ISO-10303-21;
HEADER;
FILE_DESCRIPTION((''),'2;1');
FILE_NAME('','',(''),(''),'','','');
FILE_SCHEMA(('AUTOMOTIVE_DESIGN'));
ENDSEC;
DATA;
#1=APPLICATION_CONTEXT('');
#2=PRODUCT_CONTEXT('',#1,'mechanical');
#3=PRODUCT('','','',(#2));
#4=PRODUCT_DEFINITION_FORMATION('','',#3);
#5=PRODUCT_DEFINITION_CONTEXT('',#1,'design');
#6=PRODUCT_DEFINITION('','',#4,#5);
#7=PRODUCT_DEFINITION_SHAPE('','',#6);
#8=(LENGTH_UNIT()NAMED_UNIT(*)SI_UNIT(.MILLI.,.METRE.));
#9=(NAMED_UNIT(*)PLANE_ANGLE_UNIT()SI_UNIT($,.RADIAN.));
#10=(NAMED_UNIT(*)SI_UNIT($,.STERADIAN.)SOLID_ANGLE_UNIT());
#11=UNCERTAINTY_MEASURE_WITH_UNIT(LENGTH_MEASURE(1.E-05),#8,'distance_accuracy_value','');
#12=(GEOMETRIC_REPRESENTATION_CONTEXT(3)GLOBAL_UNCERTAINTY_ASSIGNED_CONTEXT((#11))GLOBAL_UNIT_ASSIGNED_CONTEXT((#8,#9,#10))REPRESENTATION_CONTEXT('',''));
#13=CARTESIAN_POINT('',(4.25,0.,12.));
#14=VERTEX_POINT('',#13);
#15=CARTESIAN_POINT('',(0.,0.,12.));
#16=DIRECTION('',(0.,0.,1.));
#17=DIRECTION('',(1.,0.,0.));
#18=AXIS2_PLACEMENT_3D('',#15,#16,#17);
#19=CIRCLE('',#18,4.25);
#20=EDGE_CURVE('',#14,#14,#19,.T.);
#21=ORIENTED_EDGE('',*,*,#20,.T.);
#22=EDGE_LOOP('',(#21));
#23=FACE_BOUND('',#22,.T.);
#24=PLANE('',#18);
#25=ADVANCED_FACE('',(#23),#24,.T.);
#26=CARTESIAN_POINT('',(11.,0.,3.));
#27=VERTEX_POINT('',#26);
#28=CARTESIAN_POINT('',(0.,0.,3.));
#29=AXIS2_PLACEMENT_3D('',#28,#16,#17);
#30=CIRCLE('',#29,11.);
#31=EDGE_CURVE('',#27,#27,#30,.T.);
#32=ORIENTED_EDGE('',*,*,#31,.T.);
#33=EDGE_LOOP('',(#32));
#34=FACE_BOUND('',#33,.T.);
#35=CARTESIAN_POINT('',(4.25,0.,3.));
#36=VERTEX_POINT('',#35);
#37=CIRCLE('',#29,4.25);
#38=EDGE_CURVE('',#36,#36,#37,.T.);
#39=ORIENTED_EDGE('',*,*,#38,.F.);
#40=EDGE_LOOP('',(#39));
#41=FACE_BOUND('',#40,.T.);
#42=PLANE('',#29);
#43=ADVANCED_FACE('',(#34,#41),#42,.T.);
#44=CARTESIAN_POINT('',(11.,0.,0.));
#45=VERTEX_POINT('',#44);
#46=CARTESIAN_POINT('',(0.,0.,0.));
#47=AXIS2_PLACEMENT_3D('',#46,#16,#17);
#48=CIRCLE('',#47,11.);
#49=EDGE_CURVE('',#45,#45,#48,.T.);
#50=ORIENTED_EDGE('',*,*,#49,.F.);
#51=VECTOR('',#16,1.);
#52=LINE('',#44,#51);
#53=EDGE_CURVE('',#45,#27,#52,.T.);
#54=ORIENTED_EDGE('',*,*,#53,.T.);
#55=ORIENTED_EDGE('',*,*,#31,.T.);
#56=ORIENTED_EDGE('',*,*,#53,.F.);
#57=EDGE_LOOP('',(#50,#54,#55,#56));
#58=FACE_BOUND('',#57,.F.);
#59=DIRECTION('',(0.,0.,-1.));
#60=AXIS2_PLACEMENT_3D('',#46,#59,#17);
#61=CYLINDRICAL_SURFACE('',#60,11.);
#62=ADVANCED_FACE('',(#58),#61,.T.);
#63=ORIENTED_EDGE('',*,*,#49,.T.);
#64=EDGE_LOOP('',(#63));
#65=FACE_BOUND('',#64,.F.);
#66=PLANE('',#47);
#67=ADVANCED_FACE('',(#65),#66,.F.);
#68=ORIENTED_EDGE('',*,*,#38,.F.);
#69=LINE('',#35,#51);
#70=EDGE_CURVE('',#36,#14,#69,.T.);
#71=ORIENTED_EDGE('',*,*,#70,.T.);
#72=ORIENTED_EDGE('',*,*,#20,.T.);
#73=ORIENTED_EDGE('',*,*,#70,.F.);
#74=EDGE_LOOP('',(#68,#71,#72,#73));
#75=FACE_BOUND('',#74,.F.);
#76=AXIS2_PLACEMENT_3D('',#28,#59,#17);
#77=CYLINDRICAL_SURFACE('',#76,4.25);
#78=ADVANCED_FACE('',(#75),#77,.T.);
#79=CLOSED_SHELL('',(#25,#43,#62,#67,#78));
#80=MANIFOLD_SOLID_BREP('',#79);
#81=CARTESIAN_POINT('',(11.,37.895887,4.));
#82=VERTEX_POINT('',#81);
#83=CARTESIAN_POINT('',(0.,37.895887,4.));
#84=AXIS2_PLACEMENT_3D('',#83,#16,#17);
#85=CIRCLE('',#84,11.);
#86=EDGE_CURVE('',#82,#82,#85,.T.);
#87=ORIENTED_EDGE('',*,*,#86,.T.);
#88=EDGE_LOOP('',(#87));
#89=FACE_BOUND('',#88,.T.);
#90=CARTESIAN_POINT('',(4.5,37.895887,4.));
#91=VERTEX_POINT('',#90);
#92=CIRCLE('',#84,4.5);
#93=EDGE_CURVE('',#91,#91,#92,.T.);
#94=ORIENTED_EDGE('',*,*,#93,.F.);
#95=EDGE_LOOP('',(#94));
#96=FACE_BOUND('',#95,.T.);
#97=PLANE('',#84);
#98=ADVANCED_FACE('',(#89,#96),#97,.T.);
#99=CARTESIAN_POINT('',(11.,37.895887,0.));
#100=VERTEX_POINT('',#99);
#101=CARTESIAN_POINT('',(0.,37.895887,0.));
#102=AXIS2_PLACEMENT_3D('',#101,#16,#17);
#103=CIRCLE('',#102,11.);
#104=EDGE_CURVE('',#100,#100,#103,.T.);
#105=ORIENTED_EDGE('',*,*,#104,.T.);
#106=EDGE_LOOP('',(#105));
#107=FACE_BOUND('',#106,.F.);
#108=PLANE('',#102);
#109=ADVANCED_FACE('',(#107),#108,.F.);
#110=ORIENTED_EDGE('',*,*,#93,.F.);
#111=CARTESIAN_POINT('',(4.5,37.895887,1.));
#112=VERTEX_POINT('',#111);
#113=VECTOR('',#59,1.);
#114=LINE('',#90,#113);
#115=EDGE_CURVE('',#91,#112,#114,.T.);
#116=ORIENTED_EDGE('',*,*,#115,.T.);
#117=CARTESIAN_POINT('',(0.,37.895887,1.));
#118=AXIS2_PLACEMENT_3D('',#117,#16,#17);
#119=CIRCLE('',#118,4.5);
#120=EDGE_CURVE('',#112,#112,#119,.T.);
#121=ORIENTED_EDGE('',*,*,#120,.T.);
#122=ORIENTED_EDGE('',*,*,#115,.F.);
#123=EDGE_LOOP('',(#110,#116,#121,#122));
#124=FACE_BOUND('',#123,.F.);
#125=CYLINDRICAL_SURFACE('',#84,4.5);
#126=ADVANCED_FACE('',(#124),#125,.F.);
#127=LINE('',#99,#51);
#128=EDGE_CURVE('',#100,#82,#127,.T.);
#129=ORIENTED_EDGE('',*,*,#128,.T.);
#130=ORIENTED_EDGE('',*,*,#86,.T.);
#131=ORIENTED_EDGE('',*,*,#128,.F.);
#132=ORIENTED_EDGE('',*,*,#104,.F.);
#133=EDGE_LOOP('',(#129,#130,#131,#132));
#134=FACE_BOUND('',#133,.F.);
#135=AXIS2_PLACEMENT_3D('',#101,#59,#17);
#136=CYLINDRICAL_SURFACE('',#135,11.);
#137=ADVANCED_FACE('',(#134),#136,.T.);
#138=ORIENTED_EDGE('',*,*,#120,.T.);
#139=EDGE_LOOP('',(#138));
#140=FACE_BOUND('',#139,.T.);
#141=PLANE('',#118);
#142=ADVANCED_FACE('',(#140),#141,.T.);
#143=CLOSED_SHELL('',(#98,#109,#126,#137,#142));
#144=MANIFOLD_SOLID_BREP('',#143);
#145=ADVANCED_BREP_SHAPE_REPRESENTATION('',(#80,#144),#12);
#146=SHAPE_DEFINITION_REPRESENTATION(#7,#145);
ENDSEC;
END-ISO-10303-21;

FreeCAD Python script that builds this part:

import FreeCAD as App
import Part
import Sketcher

doc = App.newDocument("Part")
params = doc.addObject("Spreadsheet::Sheet", "Params")
for row, (alias, value) in enumerate([
    ("sketch1_diameter", "22 mm"),
    ("pad1_length", "3 mm"),
    ("sketch2_diameter", "8.5 mm"),
    ("pad2_length", "9 mm"),
    ("sketch3_diameter", "22 mm"),
    ("pad3_length", "4 mm"),
    ("sketch4_diameter", "9 mm"),
    ("pocket1_length", "3 mm"),
], start=1):
    params.set(f"A{row}", alias)
    params.set(f"B{row}", "=" + value)
    params.setAlias(f"B{row}", alias)

body = doc.addObject("PartDesign::Body", "Body")

# Sketch on XY plane
sketch1 = doc.addObject("Sketcher::SketchObject", "Sketch")
body.addObject(sketch1)
sketch1.AttachmentSupport = (doc.XY_Plane, [""])
sketch1.MapMode = "FlatFace"
sketch1.addGeometry(Part.Circle(App.Vector(0, 0, 0), App.Vector(0, 0, 1), 11), False)
sketch1.addConstraint([
    Sketcher.Constraint("Coincident", 0, 3, -1, 1),
    Sketcher.Constraint("Diameter", 0, 22.0),
])
sketch1.setExpression("Constraints[1]", "Params.sketch1_diameter")
pad1 = doc.addObject("PartDesign::Pad", "Pad")
body.addObject(pad1)
pad1.Profile = sketch1
pad1.setExpression("Length", "Params.pad1_length")

# Sketch on XY plane
sketch2 = doc.addObject("Sketcher::SketchObject", "Sketch001")
body.addObject(sketch2)
sketch2.AttachmentSupport = (doc.XY_Plane, [""])
sketch2.MapMode = "FlatFace"
sketch2.AttachmentOffset = App.Placement(App.Vector(0, 0, 3), App.Rotation())
sketch2.addGeometry(Part.Circle(App.Vector(0, 0, 0), App.Vector(0, 0, 1), 4.2), False)
sketch2.addConstraint([
    Sketcher.Constraint("Coincident", 0, 3, -1, 1),
    Sketcher.Constraint("Diameter", 0, 8.5),
])
sketch2.setExpression("Constraints[1]", "Params.sketch2_diameter")
pad2 = doc.addObject("PartDesign::Pad", "Pad001")
body.addObject(pad2)
pad2.Profile = sketch2
pad2.setExpression("Length", "Params.pad2_length")
body2 = doc.addObject("PartDesign::Body", "Body001")

# Sketch on XY plane
sketch3 = doc.addObject("Sketcher::SketchObject", "Sketch002")
body2.addObject(sketch3)
sketch3.AttachmentSupport = (doc.getObject("XY_Plane001"), [""])
sketch3.MapMode = "FlatFace"
sketch3.addGeometry(Part.Circle(App.Vector(0, 38, 0), App.Vector(0, 0, 1), 11), False)
sketch3.addConstraint([
    Sketcher.Constraint("PointOnObject", 0, 3, -2),
    Sketcher.Constraint("Diameter", 0, 22.0),
    Sketcher.Constraint("DistanceY", -1, 1, 0, 3, 37.895887),
])
sketch3.setExpression("Constraints[1]", "Params.sketch3_diameter")
pad3 = doc.addObject("PartDesign::Pad", "Pad002")
body2.addObject(pad3)
pad3.Profile = sketch3
pad3.setExpression("Length", "Params.pad3_length")

# Sketch on XY plane
sketch4 = doc.addObject("Sketcher::SketchObject", "Sketch003")
body2.addObject(sketch4)
sketch4.AttachmentSupport = (doc.getObject("XY_Plane001"), [""])
sketch4.MapMode = "FlatFace"
sketch4.AttachmentOffset = App.Placement(App.Vector(0, 0, 4), App.Rotation())
sketch4.addGeometry(Part.Circle(App.Vector(0, 37.9, 0), App.Vector(0, 0, 1), 4.5), False)
sketch4.addConstraint([
    Sketcher.Constraint("PointOnObject", 0, 3, -2),
    Sketcher.Constraint("Diameter", 0, 9.0),
    Sketcher.Constraint("DistanceY", -1, 1, 0, 3, 37.895887),
])
sketch4.setExpression("Constraints[1]", "Params.sketch4_diameter")
pocket1 = doc.addObject("PartDesign::Pocket", "Pocket")
body2.addObject(pocket1)
pocket1.Profile = sketch4
pocket1.setExpression("Length", "Params.pocket1_length")

doc.recompute()
